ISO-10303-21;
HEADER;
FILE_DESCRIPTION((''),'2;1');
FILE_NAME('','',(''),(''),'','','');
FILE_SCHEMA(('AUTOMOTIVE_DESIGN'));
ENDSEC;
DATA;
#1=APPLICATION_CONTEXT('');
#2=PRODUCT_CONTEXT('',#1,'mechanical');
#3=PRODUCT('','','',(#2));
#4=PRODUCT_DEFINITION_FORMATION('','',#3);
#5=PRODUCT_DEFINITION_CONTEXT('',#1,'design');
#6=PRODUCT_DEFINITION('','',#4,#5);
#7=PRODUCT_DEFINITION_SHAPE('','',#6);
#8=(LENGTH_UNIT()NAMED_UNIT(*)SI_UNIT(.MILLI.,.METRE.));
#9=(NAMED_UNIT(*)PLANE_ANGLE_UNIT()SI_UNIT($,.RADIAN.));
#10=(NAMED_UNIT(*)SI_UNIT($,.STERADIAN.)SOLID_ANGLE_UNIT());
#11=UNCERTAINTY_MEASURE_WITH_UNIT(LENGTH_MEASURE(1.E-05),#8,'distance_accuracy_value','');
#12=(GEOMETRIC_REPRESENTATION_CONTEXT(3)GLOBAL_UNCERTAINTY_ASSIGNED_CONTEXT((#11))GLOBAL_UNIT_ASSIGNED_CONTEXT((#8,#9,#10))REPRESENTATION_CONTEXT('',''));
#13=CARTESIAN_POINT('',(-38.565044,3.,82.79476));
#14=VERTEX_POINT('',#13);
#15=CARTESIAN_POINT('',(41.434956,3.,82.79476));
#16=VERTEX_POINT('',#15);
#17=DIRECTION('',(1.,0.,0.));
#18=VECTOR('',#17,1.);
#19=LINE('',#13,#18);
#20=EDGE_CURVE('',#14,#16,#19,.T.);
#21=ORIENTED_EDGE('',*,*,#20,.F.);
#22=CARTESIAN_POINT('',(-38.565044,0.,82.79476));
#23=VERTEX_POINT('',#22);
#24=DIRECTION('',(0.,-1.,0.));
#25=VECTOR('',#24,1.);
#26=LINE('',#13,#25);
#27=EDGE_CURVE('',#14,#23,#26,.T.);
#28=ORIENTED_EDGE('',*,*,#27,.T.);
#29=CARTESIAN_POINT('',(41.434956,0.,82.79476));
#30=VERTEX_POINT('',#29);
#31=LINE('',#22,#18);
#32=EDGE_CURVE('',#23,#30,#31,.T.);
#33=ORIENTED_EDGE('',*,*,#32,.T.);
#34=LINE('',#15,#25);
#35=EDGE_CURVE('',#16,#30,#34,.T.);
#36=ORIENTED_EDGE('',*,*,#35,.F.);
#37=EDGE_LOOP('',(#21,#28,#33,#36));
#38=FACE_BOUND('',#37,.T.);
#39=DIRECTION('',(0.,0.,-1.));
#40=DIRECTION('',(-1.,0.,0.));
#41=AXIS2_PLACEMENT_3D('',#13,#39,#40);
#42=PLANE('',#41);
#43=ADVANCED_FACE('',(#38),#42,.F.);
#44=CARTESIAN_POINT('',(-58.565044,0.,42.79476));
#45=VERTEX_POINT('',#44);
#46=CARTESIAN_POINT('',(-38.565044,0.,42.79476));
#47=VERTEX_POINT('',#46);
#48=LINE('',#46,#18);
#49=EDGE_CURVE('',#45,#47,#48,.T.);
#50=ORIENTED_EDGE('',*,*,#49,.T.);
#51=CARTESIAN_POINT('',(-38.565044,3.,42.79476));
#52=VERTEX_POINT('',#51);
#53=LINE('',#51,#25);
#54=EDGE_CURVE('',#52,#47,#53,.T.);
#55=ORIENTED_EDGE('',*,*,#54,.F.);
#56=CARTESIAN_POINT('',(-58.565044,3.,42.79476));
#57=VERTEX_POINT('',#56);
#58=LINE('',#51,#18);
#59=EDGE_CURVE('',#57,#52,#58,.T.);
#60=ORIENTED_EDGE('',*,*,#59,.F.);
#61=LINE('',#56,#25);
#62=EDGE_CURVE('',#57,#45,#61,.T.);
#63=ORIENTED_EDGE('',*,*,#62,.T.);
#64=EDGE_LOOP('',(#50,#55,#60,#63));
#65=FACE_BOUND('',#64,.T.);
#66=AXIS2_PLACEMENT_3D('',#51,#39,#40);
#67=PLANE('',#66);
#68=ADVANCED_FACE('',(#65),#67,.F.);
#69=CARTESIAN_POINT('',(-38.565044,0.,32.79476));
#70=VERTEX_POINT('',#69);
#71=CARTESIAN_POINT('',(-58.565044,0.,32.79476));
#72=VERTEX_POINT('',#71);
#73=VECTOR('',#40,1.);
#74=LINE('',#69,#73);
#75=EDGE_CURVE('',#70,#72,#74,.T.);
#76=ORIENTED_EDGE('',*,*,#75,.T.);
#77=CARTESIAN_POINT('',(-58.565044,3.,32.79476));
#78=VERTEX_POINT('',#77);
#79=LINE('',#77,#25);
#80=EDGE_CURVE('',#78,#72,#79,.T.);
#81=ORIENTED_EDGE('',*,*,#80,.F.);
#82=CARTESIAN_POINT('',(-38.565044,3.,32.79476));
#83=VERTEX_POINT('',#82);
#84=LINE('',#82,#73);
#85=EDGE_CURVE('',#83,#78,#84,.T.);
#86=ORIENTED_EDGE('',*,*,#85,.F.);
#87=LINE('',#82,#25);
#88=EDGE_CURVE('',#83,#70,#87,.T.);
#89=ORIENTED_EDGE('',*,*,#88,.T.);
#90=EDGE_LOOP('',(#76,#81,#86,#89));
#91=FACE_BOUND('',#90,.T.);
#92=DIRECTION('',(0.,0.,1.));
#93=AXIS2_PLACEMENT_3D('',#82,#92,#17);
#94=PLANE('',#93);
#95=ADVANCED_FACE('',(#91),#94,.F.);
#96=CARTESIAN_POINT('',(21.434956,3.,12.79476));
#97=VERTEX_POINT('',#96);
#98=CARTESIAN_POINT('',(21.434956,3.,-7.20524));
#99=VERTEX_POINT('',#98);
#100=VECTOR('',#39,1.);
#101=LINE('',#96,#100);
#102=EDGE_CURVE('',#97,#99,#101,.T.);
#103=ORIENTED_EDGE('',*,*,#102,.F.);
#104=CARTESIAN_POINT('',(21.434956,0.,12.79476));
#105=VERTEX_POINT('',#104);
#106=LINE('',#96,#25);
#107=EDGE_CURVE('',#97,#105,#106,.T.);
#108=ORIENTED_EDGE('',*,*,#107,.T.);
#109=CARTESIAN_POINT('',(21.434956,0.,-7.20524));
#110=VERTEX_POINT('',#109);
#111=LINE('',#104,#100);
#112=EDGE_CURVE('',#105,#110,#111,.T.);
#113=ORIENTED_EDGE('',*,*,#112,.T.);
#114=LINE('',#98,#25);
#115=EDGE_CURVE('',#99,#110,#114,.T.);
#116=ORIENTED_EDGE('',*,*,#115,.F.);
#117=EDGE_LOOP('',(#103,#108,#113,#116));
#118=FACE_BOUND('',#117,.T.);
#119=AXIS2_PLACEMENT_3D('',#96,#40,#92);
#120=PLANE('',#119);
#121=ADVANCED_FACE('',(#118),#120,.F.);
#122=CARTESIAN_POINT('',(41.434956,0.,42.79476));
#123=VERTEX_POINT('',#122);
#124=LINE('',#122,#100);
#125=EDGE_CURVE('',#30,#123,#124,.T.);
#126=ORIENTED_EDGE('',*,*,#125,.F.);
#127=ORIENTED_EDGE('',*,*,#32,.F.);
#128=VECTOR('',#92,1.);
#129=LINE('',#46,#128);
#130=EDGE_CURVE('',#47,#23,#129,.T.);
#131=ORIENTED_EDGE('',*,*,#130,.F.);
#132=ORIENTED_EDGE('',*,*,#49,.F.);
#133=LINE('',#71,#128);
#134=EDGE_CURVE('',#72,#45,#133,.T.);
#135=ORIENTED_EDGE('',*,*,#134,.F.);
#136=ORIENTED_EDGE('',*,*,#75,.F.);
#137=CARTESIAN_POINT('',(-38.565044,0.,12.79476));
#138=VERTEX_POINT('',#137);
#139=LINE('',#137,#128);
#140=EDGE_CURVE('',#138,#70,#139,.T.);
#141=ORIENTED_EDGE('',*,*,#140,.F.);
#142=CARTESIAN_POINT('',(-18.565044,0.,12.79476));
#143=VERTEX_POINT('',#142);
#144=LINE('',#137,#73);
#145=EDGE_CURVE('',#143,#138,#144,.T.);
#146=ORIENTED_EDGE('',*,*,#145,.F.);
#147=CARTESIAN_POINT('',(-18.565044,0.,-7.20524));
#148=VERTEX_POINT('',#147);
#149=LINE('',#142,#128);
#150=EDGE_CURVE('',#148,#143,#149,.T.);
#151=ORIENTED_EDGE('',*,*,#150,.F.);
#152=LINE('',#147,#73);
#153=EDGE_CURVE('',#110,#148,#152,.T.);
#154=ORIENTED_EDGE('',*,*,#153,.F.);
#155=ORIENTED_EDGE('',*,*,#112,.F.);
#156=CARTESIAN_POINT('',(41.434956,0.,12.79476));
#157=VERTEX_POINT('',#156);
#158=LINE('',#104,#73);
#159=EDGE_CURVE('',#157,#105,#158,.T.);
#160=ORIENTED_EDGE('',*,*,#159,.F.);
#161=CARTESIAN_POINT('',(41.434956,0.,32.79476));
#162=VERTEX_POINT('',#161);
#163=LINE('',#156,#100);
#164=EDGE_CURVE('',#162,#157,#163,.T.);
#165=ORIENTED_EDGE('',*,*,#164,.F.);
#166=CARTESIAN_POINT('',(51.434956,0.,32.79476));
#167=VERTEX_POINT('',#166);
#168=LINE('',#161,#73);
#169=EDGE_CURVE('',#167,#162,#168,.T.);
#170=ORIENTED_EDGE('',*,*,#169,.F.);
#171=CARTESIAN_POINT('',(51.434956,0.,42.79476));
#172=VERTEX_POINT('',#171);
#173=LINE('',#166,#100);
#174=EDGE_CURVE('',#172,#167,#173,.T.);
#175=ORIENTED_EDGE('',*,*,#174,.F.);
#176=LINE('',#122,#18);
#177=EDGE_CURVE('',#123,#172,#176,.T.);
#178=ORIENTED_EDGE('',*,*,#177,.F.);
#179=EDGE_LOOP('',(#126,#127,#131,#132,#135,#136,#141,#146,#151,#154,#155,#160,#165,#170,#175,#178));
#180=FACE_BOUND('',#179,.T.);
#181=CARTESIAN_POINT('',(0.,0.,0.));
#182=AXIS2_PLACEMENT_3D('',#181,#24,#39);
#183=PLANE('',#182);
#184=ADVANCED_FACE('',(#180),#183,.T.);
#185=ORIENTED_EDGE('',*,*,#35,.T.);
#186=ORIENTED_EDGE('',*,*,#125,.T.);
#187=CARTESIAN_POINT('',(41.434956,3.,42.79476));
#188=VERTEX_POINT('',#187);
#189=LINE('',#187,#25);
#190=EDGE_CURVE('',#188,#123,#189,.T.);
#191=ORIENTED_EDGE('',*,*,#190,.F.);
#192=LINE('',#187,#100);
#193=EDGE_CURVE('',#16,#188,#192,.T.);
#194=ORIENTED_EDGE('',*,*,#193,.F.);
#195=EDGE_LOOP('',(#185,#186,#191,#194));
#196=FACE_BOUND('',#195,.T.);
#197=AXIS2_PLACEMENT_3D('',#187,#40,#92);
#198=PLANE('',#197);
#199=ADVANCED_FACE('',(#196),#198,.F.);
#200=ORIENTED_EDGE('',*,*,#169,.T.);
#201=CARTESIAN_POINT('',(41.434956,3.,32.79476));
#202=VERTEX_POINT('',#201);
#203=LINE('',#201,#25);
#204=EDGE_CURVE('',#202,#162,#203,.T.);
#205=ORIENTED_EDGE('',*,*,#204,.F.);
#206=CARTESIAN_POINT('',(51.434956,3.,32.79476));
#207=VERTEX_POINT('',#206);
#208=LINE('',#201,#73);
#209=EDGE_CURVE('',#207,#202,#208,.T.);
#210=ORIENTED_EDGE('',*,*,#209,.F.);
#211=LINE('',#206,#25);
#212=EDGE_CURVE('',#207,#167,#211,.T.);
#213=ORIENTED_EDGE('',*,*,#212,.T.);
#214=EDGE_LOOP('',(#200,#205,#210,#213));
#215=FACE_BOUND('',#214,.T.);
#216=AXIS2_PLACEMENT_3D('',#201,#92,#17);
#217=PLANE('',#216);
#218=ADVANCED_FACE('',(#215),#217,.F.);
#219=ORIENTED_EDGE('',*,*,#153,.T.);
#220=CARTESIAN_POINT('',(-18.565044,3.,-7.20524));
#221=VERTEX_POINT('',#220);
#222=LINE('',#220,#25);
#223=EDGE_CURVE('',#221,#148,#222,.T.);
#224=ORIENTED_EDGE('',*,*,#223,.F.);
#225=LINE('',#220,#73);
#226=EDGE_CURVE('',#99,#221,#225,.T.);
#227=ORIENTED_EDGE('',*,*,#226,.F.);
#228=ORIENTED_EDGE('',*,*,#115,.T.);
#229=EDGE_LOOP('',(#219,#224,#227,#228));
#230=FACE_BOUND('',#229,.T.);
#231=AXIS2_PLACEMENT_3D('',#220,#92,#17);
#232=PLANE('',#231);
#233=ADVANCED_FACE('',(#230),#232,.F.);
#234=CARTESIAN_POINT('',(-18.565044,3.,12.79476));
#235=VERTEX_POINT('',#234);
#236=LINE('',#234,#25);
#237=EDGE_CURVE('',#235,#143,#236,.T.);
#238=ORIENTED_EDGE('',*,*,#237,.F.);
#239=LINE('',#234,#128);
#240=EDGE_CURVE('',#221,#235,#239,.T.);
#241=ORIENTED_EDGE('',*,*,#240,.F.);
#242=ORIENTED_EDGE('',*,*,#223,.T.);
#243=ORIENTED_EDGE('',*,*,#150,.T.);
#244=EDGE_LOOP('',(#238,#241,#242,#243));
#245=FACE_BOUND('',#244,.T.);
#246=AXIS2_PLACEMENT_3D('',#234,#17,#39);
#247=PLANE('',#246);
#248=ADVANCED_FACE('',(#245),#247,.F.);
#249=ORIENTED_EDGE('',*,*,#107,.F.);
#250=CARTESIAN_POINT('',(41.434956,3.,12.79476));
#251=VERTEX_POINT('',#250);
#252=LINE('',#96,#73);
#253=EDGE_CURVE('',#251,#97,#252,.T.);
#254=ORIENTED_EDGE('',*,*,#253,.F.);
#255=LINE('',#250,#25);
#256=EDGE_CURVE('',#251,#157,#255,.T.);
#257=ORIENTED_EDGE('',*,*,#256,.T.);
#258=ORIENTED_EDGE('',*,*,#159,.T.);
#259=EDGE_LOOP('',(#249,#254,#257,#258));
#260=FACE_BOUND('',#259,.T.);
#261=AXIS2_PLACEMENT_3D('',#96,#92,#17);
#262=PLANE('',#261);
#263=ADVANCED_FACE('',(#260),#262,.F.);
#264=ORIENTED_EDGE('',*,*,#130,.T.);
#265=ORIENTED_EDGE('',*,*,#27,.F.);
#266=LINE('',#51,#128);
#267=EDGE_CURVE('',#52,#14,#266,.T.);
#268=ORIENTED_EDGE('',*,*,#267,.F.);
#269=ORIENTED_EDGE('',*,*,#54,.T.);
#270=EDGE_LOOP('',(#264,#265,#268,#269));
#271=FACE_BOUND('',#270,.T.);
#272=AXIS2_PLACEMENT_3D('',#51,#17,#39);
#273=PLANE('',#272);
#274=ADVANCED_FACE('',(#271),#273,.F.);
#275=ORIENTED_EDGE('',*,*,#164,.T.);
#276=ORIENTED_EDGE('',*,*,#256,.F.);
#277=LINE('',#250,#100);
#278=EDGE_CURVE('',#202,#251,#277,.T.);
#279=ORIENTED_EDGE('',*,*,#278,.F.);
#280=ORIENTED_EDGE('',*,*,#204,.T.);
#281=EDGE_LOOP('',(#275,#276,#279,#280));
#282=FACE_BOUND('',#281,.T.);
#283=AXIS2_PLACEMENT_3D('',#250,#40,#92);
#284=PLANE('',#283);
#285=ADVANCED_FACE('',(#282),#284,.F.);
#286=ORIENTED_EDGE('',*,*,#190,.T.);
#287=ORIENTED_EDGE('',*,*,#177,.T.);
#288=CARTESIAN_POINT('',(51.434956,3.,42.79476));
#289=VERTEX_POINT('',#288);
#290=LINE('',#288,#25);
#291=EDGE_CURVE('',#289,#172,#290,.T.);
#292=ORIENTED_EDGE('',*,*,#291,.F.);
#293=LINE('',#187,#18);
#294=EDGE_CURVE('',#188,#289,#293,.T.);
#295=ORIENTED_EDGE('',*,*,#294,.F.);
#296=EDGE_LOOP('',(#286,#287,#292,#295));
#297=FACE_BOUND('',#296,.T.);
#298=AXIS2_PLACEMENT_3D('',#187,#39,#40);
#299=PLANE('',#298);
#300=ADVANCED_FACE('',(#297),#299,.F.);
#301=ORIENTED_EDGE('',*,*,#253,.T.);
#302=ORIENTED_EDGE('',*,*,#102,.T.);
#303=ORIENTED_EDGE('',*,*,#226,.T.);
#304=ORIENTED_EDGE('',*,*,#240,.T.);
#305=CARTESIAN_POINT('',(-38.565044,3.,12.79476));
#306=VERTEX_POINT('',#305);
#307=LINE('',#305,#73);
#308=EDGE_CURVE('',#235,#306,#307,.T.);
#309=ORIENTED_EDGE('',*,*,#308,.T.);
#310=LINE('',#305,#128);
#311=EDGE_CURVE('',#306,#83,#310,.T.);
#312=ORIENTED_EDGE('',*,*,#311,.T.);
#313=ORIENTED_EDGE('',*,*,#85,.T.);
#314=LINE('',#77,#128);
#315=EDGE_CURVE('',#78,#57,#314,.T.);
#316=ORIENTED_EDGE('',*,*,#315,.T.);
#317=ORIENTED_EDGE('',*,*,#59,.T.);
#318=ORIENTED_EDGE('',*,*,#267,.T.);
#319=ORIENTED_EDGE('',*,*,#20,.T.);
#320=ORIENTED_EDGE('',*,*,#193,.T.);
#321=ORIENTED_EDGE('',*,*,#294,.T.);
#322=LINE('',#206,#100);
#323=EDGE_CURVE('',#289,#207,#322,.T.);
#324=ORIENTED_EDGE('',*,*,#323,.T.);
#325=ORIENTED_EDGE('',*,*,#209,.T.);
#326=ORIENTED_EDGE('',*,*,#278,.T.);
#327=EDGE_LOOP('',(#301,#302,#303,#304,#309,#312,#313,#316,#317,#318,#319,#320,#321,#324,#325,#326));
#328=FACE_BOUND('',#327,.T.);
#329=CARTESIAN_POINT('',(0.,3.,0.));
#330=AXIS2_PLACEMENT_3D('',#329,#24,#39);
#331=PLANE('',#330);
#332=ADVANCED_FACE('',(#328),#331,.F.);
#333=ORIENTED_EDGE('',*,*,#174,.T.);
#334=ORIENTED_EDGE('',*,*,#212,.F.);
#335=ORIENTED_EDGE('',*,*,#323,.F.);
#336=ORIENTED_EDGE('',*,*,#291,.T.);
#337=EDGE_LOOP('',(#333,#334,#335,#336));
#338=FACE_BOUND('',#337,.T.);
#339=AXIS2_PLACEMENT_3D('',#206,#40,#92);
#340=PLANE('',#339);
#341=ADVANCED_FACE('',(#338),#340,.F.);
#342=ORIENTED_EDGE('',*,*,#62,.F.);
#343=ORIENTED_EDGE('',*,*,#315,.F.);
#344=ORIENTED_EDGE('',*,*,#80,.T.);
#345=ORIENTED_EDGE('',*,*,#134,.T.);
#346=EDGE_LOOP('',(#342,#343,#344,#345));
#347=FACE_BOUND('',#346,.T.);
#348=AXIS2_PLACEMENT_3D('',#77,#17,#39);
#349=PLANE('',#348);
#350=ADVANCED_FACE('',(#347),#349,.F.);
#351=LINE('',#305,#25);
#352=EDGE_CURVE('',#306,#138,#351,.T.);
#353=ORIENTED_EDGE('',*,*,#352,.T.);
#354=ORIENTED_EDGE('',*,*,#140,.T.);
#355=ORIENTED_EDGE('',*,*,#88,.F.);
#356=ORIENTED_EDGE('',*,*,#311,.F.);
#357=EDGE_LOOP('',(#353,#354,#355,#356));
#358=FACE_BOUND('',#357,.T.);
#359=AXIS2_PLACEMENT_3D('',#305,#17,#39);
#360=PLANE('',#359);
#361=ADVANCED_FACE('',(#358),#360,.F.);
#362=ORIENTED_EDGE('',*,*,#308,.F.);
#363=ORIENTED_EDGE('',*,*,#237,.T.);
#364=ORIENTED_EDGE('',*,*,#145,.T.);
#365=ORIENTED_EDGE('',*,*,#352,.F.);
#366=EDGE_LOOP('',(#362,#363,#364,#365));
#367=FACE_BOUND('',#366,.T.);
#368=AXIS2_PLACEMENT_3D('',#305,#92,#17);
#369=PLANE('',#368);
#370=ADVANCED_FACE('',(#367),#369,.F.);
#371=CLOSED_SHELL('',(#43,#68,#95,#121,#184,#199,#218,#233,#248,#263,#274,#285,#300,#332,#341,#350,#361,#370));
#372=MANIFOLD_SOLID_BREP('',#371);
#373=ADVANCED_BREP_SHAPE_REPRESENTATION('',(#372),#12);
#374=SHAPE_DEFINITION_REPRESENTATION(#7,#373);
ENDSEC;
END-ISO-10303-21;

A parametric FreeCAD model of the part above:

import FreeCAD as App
import Part
import Sketcher
from FreeCAD import Vector
Q = App.Units.Quantity


def add_polygon(sketch, points):
    """Adds a closed chain of lines whose ends are joined by coincident constraints."""
    first, n = sketch.GeometryCount, len(points)
    for a, b in zip(points, points[1:] + points[:1]):
        sketch.addGeometry(Part.LineSegment(App.Vector(*a, 0), App.Vector(*b, 0)), False)
    for i in range(n):
        sketch.addConstraint(Sketcher.Constraint("Coincident", first + i, 2, first + (i + 1) % n, 1))

doc = App.newDocument("Part")
body = doc.addObject("PartDesign::Body", "Body")

# Sketch on XZ plane
sketch1 = doc.addObject("Sketcher::SketchObject", "Sketch")
body.addObject(sketch1)
sketch1.AttachmentSupport = (doc.XZ_Plane, [""])
sketch1.MapMode = "FlatFace"
add_polygon(sketch1, [(-39, 43), (-39, 83), (41, 83), (41, 43), (51, 43), (51, 33), (41, 33), (41, 13), (21, 13), (21, -7), (-19, -7), (-19, 13), (-39, 13), (-39, 33), (-59, 33), (-59, 43)])  # lines 0-15
sketch1.addConstraint([
    Sketcher.Constraint("Vertical", 0),
    Sketcher.Constraint("Horizontal", 1),
    Sketcher.Constraint("Vertical", 2),
    Sketcher.Constraint("Horizontal", 3),
    Sketcher.Constraint("Vertical", 4),
    Sketcher.Constraint("Horizontal", 5),
    Sketcher.Constraint("Vertical", 6),
    Sketcher.Constraint("Horizontal", 7),
    Sketcher.Constraint("Vertical", 8),
    Sketcher.Constraint("Horizontal", 9),
    Sketcher.Constraint("Vertical", 10),
    Sketcher.Constraint("Horizontal", 11),
    Sketcher.Constraint("Vertical", 12),
    Sketcher.Constraint("Horizontal", 13),
    Sketcher.Constraint("Vertical", 14),
    Sketcher.Constraint("Horizontal", 15),
    Sketcher.Constraint("Horizontal", 7, 2, 10, 2),
    Sketcher.Constraint("Horizontal", 5, 2, 12, 2),
    Sketcher.Constraint("Horizontal", 3, 2, 14, 2),
    Sketcher.Constraint("Vertical", 2, 2, 5, 2),
    Sketcher.Constraint("Vertical", 0, 2, 11, 2),
    Sketcher.Constraint("Equal", 7, 11),
    Sketcher.Constraint("Equal", 11, 13),
    Sketcher.Constraint("Equal", 9, 0),
    Sketcher.Constraint("Equal", 5, 4),
    Sketcher.Constraint("Equal", 15, 6),
    Sketcher.Constraint("Equal", 6, 8),
    Sketcher.Constraint("DistanceX", 1, 1, 1, 2, Q("80 mm")),
    Sketcher.Constraint("DistanceX", 3, 1, 3, 2, Q("10 mm")),
    Sketcher.Constraint("DistanceX", 7, 2, 7, 1, Q("20 mm")),
    Sketcher.Constraint("DistanceY", -1, 1, 0, 2, Q("82.79476 mm")),
    Sketcher.Constraint("DistanceX", 0, 2, -1, 1, Q("38.565044 mm")),
])
pad1 = doc.addObject("PartDesign::Pad", "Pad")
body.addObject(pad1)
pad1.Profile = sketch1
pad1.Length = 3
pad1.Reversed = True

doc.recompute()
